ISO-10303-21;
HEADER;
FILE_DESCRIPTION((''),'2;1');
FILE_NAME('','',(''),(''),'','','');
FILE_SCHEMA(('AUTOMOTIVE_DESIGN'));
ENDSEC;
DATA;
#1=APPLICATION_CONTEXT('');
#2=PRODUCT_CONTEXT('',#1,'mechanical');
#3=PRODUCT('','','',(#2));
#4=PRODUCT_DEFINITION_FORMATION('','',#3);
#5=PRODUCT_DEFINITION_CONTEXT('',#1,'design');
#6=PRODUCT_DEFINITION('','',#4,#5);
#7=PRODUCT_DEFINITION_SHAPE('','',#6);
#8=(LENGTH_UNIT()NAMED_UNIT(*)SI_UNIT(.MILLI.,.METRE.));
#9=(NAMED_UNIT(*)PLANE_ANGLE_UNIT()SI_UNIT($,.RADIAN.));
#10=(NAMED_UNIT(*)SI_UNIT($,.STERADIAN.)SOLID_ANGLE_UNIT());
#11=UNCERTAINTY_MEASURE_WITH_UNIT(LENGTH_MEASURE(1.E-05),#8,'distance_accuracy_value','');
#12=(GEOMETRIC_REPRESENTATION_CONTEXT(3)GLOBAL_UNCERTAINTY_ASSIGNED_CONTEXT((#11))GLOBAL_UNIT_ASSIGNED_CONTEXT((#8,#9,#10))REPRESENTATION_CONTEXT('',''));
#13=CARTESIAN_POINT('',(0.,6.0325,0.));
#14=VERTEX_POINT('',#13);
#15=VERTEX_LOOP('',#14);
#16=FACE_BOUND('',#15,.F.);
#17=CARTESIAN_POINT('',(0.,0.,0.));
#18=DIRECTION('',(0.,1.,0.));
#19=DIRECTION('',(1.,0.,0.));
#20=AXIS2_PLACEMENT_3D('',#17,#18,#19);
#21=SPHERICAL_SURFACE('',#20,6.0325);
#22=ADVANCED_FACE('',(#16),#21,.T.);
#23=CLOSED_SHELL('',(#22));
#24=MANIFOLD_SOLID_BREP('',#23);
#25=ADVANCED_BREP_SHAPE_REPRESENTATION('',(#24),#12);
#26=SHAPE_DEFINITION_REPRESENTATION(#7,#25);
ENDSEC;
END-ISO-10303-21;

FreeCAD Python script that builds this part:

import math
import FreeCAD as App
import Part
import Sketcher
from FreeCAD import Vector
Q = App.Units.Quantity

doc = App.newDocument("Part")
params = doc.addObject("Spreadsheet::Sheet", "Params")
for row, (alias, value) in enumerate([
    ("revolution_angle", "360 deg"),
], start=1):
    params.set(f"A{row}", alias)
    params.set(f"B{row}", "=" + value)
    params.setAlias(f"B{row}", alias)

body = doc.addObject("PartDesign::Body", "Body")

sketch1 = body.newObject("Sketcher::SketchObject", "Sketch")
sketch1.AttachmentSupport = (doc.getObject("XY_Plane"), [""])
sketch1.MapMode = "FlatFace"
sketch1.addGeometry([
    Part.LineSegment(Vector(0, 6.0325, 0), Vector(0, -6.0325, 0)),
    Part.ArcOfCircle(Part.Circle(Vector(0, 0, 0), Vector(0, 0, 1), 6.0325), math.radians(-90), math.radians(90)),
], False)
sketch1.addConstraint([
    Sketcher.Constraint("Coincident", 0, 1, 1, 2),
    Sketcher.Constraint("Coincident", 1, 1, 0, 2),
    Sketcher.Constraint("Vertical", 0),
    Sketcher.Constraint("Coincident", 1, 3, -1, 1),
    Sketcher.Constraint("PointOnObject", 0, 1, -2),
    Sketcher.Constraint("Radius", 1, Q("0.2375 in")),
])
revolution = body.newObject("PartDesign::Revolution", "Revolution")
revolution.Profile = sketch1
revolution.ReferenceAxis = (sketch1, ["V_Axis"])
revolution.setExpression("Angle", "Params.revolution_angle")

doc.recompute()
